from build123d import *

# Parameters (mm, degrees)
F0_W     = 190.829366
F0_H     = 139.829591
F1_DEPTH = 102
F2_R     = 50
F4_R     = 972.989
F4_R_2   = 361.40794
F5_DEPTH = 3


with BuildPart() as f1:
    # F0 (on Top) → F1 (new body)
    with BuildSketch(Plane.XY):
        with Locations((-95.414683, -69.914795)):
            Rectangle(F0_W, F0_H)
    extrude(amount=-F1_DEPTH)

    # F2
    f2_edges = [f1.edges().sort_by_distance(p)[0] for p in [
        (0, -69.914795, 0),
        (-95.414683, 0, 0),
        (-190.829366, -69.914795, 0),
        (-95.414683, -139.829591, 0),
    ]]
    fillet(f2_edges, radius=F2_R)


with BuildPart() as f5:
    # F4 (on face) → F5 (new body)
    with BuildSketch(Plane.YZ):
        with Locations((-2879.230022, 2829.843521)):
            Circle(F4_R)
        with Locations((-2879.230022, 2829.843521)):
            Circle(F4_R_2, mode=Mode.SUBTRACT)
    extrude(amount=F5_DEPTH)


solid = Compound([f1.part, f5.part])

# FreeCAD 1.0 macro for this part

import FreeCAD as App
import Part
import Sketcher
from FreeCAD import Vector


def edges_at(feature, points):
    """Names of the edges that pass closest to the given points."""
    edges = feature.Shape.Edges
    near = lambda p: min(range(len(edges)), key=lambda i: edges[i].distToShape(Part.Vertex(*p))[0])
    return sorted({f"Edge{near(p) + 1}" for p in points})


def add_polygon(sketch, points):
    """Adds a closed chain of lines whose ends are joined by coincident constraints."""
    first, n = sketch.GeometryCount, len(points)
    for a, b in zip(points, points[1:] + points[:1]):
        sketch.addGeometry(Part.LineSegment(App.Vector(*a, 0), App.Vector(*b, 0)), False)
    for i in range(n):
        sketch.addConstraint(Sketcher.Constraint("Coincident", first + i, 2, first + (i + 1) % n, 1))

doc = App.newDocument("Part")
params = doc.addObject("Spreadsheet::Sheet", "Params")
for row, (alias, value) in enumerate([
    ("pad1_length", "102 mm"),
    ("fillet_radius", "50 mm"),
    ("pad2_length", "3 mm"),
], start=1):
    params.set(f"A{row}", alias)
    params.set(f"B{row}", "=" + value)
    params.setAlias(f"B{row}", alias)

body = doc.addObject("PartDesign::Body", "Body")

sketch1 = doc.addObject("Sketcher::SketchObject", "Sketch")
body.addObject(sketch1)
sketch1.AttachmentSupport = (doc.XY_Plane, [""])
sketch1.MapMode = "FlatFace"
add_polygon(sketch1, [(-191, 0), (-191, -140), (0, -140), (0, 0)])
sketch1.addConstraint([
    Sketcher.Constraint("Vertical", 0),
    Sketcher.Constraint("Horizontal", 1),
    Sketcher.Constraint("Vertical", 2),
    Sketcher.Constraint("Horizontal", 3),
    Sketcher.Constraint("Coincident", 2, 2, -1, 1),
    Sketcher.Constraint("DistanceY", 0, 2, 0, 1, 139.829591),
    Sketcher.Constraint("DistanceX", 1, 1, 1, 2, 190.829366),
])
pad1 = doc.addObject("PartDesign::Pad", "Pad")
body.addObject(pad1)
pad1.Profile = sketch1
pad1.setExpression("Length", "Params.pad1_length")
pad1.Reversed = True
doc.recompute()

fillet = doc.addObject("PartDesign::Fillet", "Fillet")
body.addObject(fillet)
fillet.Base = (pad1, edges_at(pad1, [
    (0, -69.915, 0),
    (-95.415, 0, 0),
    (-190.829, -69.915, 0),
    (-95.415, -139.83, 0),
]))
fillet.setExpression("Radius", "Params.fillet_radius")
body2 = doc.addObject("PartDesign::Body", "Body001")

sketch2 = doc.addObject("Sketcher::SketchObject", "Sketch001")
body2.addObject(sketch2)
sketch2.AttachmentSupport = (doc.getObject("YZ_Plane001"), [""])
sketch2.MapMode = "FlatFace"
sketch2.addGeometry([
    Part.Circle(Vector(-2879, 2830, 0), Vector(0, 0, 1), 973),
    Part.Circle(Vector(-2879, 2830, 0), Vector(0, 0, 1), 361),
], False)
sketch2.addConstraint([
    Sketcher.Constraint("Coincident", 1, 3, 0, 3),
    Sketcher.Constraint("Diameter", 0, 1945.978),
    Sketcher.Constraint("Diameter", 1, 722.81588),
    Sketcher.Constraint("DistanceY", -1, 1, 0, 3, 2829.843521),
    Sketcher.Constraint("DistanceX", 0, 3, -1, 1, 2879.230022),
])
pad2 = doc.addObject("PartDesign::Pad", "Pad001")
body2.addObject(pad2)
pad2.Profile = sketch2
pad2.setExpression("Length", "Params.pad2_length")

doc.recompute()
